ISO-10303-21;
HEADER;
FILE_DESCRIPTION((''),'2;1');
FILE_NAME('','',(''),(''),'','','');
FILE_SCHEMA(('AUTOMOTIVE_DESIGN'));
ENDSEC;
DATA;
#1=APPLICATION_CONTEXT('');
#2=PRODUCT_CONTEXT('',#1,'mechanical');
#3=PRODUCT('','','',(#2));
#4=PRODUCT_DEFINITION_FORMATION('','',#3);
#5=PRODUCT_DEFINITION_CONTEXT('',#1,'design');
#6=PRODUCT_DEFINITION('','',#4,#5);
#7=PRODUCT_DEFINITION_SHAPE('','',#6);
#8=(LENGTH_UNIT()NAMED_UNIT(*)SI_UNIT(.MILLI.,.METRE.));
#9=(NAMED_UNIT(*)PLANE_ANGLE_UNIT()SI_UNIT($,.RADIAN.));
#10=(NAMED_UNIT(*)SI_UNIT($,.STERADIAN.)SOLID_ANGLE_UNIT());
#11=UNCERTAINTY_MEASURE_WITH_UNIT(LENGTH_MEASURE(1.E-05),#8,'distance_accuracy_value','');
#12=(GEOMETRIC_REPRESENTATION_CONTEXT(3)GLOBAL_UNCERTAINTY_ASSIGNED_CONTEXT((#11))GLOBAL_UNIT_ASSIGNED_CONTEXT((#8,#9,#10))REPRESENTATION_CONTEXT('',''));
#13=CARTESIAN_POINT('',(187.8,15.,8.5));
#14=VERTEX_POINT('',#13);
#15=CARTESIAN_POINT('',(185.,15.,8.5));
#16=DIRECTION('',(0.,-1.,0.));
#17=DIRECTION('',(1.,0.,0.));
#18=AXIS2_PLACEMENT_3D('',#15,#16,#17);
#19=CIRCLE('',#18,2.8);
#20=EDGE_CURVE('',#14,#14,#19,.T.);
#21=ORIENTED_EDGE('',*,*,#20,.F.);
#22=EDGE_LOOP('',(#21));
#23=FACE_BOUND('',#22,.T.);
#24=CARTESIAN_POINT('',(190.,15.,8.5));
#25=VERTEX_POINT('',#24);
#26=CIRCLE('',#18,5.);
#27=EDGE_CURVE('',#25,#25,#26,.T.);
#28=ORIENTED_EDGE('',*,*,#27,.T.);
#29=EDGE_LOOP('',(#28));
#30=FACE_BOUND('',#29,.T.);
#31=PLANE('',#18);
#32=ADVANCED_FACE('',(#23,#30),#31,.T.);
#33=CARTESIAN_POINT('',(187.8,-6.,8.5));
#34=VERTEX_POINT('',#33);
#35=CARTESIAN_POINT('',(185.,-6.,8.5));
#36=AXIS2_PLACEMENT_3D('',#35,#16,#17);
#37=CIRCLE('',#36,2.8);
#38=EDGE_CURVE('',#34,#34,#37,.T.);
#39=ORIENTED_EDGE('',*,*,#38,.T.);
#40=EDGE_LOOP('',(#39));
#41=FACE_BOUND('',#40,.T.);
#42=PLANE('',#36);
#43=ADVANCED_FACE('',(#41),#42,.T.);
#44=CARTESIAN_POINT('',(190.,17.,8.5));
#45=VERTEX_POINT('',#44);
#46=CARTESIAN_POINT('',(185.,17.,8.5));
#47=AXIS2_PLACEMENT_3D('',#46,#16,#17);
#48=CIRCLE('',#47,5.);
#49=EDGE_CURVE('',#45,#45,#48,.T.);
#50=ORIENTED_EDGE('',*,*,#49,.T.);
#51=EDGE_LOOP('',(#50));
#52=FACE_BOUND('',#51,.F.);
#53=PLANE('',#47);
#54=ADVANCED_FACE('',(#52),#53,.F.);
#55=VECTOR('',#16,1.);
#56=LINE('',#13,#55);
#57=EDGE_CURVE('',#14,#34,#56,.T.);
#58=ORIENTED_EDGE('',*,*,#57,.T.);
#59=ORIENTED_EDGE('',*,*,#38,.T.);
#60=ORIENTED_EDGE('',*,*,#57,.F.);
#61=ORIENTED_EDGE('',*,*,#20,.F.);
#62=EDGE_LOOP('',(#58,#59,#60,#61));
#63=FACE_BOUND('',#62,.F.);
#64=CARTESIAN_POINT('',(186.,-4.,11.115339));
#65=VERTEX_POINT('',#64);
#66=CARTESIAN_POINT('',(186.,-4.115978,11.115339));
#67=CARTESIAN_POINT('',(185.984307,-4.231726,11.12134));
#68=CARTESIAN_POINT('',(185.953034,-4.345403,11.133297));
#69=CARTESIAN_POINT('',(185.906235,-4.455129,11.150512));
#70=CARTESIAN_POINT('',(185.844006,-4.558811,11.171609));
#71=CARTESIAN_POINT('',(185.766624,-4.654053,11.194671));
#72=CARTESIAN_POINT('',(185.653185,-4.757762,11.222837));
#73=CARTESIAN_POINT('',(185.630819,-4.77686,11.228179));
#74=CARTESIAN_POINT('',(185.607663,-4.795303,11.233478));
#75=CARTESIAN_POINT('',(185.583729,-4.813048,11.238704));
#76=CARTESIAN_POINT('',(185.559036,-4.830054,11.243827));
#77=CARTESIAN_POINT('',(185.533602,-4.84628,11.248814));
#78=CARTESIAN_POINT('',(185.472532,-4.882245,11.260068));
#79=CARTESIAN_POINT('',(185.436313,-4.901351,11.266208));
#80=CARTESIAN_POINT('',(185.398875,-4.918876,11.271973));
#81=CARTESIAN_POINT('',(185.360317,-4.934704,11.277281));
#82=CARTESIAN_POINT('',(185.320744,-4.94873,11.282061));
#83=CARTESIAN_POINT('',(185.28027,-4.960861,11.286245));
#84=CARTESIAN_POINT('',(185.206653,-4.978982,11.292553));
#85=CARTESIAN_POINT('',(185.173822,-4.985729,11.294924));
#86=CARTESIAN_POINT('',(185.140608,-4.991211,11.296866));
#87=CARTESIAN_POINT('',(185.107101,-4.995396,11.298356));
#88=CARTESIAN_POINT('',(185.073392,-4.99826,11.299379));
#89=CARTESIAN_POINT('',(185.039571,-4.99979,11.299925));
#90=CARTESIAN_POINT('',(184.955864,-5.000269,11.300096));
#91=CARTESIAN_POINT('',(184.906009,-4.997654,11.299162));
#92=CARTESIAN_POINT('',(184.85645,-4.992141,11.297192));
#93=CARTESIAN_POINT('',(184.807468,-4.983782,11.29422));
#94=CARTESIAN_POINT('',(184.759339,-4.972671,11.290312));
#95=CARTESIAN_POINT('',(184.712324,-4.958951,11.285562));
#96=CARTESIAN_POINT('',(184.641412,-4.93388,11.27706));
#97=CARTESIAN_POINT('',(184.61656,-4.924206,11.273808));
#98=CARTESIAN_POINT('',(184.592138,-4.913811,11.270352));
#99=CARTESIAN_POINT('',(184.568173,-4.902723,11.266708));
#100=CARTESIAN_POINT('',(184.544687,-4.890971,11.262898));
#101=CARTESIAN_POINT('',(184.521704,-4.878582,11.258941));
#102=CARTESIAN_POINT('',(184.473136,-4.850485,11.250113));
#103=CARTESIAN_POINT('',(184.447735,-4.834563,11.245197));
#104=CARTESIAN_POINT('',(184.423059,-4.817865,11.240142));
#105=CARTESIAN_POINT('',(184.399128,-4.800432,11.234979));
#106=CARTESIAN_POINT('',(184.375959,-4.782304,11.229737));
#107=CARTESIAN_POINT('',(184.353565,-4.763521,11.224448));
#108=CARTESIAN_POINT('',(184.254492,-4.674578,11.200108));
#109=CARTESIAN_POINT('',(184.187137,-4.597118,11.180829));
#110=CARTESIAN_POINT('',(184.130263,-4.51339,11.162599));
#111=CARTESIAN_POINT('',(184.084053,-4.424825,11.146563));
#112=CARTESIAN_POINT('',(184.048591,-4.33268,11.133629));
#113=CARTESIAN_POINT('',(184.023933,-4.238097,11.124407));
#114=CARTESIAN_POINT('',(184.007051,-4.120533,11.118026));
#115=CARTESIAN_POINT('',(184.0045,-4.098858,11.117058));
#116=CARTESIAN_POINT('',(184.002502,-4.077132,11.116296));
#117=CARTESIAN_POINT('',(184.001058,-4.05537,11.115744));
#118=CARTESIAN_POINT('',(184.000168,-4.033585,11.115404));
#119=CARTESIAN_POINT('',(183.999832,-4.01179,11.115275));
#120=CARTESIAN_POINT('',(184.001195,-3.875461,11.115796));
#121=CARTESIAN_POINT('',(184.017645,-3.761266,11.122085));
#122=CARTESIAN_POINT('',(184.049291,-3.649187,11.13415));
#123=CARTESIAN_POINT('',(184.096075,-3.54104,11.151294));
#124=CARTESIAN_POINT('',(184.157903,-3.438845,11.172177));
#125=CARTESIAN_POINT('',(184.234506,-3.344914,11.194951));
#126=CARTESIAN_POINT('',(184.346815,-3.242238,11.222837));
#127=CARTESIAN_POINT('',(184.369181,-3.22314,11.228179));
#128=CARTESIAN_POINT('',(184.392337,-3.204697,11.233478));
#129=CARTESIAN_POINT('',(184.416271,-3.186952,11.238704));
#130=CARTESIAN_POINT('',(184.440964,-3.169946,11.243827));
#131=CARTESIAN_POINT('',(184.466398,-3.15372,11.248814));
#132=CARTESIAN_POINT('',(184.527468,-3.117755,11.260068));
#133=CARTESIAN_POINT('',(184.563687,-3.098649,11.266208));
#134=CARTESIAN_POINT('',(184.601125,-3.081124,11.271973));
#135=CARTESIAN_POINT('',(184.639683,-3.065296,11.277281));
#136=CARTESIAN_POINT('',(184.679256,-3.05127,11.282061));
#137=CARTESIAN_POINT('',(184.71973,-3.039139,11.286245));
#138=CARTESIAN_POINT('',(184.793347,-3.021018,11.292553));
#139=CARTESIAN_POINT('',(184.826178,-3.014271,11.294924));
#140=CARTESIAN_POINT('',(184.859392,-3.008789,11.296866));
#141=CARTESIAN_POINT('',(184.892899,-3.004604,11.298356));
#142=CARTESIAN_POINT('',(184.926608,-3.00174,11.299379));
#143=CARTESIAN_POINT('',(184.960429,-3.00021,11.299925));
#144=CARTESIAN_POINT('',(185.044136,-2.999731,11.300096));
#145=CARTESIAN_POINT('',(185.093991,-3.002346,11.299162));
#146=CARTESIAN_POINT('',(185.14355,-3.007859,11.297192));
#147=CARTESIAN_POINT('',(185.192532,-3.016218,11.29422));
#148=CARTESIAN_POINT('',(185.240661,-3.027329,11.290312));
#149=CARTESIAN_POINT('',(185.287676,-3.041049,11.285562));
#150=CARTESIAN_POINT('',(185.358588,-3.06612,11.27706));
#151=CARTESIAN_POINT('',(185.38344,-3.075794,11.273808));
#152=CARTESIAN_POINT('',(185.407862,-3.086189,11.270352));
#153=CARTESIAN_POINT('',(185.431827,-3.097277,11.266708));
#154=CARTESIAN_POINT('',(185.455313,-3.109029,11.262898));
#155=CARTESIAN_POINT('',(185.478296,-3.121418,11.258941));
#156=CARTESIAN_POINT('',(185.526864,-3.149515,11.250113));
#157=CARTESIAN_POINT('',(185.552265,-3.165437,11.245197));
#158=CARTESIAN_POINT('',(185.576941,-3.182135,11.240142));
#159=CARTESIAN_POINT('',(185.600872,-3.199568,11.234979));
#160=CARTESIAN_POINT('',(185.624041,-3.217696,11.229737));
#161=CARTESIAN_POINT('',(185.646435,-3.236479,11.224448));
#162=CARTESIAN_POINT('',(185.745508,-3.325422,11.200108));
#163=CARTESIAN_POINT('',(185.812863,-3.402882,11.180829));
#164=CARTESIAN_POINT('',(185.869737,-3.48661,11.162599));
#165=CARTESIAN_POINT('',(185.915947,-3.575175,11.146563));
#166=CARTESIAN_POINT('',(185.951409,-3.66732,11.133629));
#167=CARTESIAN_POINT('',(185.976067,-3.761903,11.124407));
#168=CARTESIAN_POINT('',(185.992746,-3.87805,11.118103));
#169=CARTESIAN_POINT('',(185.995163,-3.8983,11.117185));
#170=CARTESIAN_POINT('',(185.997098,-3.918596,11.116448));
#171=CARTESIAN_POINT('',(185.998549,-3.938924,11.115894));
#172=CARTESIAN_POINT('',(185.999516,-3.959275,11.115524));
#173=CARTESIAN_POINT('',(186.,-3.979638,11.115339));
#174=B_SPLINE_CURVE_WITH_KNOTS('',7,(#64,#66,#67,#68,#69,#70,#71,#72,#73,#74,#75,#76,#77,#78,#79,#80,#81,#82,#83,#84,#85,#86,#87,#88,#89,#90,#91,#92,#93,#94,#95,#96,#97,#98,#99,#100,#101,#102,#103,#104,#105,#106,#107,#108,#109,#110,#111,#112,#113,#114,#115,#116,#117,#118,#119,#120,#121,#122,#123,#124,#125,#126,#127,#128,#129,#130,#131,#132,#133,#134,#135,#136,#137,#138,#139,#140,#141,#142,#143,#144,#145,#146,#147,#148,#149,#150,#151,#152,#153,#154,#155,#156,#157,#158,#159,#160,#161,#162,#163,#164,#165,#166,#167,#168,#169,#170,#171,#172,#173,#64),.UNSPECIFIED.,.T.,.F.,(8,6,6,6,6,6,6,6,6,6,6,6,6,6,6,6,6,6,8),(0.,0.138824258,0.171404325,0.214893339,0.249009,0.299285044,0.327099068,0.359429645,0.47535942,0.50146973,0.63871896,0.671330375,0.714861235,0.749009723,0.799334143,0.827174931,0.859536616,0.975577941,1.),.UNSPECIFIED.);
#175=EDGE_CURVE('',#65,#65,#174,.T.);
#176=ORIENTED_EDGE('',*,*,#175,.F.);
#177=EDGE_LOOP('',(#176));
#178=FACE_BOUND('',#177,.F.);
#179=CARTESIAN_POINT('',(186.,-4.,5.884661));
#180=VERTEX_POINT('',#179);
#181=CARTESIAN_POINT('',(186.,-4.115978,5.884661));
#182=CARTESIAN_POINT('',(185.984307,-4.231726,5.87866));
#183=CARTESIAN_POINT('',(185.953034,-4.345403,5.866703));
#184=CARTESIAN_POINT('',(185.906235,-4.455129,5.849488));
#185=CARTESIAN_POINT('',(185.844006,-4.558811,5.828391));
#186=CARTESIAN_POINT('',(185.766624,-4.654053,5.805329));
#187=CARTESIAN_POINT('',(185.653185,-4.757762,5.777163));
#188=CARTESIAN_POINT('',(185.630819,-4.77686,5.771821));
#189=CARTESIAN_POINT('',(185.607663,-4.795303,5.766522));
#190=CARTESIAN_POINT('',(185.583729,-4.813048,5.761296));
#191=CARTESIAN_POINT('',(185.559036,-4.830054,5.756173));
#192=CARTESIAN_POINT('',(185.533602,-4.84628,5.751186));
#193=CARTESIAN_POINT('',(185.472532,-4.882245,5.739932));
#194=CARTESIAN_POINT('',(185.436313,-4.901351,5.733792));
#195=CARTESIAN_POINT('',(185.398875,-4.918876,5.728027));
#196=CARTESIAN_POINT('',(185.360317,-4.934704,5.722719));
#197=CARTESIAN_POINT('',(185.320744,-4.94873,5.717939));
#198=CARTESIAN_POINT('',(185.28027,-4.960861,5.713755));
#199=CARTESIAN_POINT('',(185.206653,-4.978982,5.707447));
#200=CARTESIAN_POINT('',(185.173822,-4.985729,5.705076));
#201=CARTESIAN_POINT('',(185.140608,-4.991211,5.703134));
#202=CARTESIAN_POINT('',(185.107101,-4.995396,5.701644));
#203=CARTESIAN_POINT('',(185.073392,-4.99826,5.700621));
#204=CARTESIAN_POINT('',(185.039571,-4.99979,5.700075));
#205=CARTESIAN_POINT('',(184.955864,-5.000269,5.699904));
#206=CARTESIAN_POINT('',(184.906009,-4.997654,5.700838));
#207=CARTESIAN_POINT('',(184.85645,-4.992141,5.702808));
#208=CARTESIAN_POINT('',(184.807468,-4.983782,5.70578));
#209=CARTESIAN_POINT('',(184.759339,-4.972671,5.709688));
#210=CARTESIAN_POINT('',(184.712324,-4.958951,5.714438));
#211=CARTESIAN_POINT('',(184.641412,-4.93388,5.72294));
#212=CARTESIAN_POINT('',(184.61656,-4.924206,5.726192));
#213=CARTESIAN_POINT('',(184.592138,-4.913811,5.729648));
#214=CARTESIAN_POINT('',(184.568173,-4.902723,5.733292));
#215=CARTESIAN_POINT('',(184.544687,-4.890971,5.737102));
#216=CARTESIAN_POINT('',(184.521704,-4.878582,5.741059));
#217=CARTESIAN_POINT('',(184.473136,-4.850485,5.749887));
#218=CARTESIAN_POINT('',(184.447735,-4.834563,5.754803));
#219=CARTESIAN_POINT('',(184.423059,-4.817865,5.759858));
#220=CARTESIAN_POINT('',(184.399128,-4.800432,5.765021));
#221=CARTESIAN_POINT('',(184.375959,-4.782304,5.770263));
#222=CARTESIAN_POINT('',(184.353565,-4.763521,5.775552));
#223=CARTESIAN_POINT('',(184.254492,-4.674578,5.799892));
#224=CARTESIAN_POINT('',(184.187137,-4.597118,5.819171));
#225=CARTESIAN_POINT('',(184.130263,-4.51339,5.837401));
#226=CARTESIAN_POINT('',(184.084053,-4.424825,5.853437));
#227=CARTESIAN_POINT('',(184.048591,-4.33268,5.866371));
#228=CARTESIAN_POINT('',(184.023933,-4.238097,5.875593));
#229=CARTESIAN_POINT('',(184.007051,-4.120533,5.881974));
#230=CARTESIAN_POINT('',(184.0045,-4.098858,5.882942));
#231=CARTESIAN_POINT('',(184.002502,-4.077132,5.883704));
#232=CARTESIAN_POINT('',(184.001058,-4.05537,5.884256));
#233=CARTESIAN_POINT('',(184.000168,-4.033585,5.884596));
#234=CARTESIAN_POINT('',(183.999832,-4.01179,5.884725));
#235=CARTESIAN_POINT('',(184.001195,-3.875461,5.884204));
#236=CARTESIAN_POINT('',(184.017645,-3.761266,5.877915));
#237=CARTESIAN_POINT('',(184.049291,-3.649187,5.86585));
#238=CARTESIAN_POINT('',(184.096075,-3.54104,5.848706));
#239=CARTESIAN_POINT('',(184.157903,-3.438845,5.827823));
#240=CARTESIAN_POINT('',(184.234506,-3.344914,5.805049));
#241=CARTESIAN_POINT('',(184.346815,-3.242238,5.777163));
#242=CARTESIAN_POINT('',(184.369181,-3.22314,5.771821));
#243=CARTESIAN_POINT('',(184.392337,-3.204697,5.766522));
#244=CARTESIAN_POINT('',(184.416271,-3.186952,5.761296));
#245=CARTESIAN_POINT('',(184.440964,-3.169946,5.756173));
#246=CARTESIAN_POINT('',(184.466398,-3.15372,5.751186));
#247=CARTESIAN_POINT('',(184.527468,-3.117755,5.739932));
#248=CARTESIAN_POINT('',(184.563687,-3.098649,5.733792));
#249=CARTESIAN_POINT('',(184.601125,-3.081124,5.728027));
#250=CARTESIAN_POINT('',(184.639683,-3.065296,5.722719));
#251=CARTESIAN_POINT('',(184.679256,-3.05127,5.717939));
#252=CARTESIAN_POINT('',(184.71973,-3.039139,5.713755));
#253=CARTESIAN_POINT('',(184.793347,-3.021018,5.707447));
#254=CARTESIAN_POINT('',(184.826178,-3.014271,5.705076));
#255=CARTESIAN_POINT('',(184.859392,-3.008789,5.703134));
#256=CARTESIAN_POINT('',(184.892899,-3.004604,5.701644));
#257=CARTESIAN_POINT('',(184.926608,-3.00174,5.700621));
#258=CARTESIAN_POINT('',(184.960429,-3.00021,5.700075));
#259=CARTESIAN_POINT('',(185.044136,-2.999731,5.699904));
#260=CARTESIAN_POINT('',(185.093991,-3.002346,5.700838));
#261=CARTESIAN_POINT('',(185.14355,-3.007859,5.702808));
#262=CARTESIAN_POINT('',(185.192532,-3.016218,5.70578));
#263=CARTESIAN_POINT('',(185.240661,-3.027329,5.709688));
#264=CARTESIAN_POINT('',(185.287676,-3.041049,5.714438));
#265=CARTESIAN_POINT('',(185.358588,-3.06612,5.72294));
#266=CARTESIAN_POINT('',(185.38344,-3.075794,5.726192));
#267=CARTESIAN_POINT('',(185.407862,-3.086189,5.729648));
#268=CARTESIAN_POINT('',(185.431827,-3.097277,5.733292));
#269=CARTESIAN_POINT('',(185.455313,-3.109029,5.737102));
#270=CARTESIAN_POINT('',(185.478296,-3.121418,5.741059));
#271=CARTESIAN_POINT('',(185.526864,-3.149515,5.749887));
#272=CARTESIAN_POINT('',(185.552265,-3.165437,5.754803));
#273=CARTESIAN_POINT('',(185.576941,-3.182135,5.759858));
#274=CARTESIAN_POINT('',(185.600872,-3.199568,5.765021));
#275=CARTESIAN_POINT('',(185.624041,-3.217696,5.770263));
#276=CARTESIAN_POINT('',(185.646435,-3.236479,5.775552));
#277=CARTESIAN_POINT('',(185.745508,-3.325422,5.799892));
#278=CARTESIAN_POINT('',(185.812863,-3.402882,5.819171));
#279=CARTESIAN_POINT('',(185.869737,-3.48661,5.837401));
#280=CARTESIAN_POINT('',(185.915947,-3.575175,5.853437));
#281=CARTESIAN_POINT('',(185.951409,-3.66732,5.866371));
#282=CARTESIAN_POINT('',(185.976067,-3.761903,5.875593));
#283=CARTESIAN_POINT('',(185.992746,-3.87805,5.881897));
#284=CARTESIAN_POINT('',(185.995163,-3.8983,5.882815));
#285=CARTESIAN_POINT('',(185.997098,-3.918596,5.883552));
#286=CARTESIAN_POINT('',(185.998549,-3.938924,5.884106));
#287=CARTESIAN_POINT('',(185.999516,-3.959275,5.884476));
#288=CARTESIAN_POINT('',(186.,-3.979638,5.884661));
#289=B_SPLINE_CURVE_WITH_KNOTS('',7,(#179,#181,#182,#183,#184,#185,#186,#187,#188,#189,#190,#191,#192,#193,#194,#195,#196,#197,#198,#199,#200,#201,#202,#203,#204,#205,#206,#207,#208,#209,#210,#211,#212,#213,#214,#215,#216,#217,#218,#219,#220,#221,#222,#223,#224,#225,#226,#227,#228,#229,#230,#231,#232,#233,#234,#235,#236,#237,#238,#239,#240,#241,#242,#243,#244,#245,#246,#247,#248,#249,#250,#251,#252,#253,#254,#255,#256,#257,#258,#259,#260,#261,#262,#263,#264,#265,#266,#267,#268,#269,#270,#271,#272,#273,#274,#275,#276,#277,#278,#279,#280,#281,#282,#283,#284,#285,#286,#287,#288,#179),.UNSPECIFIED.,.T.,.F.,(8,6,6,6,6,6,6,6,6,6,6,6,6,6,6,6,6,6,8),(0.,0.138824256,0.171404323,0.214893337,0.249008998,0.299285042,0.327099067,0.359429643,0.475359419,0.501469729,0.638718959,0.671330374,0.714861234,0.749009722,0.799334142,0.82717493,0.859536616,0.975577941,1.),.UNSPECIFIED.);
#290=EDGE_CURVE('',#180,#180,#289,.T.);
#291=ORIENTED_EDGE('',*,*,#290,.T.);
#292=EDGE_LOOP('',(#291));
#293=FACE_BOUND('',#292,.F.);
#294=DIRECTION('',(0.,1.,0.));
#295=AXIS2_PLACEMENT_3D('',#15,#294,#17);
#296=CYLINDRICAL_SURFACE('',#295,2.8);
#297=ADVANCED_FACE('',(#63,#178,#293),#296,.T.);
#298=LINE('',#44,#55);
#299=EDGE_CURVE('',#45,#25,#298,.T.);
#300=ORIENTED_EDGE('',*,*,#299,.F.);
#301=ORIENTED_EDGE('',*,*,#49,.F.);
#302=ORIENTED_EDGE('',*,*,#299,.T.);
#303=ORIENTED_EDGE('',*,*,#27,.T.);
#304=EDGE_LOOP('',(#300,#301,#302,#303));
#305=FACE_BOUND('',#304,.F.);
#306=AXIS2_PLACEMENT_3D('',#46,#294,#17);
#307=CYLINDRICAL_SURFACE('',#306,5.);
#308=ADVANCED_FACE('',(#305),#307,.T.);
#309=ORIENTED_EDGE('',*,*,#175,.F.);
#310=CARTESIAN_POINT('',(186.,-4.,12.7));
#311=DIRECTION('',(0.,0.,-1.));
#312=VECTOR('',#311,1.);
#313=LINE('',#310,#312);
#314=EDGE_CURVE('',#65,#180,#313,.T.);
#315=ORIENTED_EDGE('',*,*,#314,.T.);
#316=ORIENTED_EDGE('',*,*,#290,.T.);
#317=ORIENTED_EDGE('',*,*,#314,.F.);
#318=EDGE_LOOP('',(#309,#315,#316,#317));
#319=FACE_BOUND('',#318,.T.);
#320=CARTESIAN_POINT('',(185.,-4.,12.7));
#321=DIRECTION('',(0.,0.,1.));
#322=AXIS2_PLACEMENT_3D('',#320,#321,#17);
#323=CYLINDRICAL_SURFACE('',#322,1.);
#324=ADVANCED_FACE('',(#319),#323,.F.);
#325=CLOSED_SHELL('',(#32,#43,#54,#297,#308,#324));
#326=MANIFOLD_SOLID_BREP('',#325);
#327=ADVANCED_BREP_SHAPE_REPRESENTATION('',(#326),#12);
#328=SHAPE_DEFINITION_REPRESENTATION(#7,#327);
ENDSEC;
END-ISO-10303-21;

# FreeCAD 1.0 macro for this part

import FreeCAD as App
import Part
import Sketcher

V = App.Vector

doc = App.newDocument("Part")
body = doc.addObject("PartDesign::Body", "Body")

sketch1 = body.newObject("Sketcher::SketchObject", "Sketch")
sketch1.AttachmentSupport = (doc.getObject("XZ_Plane"), [""])
sketch1.MapMode = "FlatFace"
sketch1.AttachmentOffset = App.Placement(V(0, 0, -4.2), App.Rotation())
sketch1.addGeometry(Part.Circle(V(0, 21, 0), V(0, 0, 1), 1), False)
sketch1.addConstraint(Sketcher.Constraint("PointOnObject", 0, 3, -2))
sketch1.addConstraint(Sketcher.Constraint("Diameter", 0, 2.0))
sketch1.addConstraint(Sketcher.Constraint("DistanceY", -1, 1, 0, 3, 21.0))
pad1 = body.newObject("PartDesign::Pad", "Pad")
pad1.Profile = sketch1
pad1.Length = 10
body2 = doc.addObject("PartDesign::Body", "Body001")

sketch2 = body2.newObject("Sketcher::SketchObject", "Sketch001")
sketch2.AttachmentSupport = (doc.getObject("XY_Plane001"), [""])
sketch2.MapMode = "FlatFace"
sketch2.AttachmentOffset = App.Placement(V(0, 0, 2), App.Rotation())
sketch2.addGeometry(Part.Circle(V(0, 0, 0), V(0, 0, 1), 2.8), False)
sketch2.addConstraint(Sketcher.Constraint("Coincident", 0, 3, -1, 1))
sketch2.addConstraint(Sketcher.Constraint("Diameter", 0, 5.6))
pad2 = body2.newObject("PartDesign::Pad", "Pad001")
pad2.Profile = sketch2
pad2.Length = 21
body3 = doc.addObject("PartDesign::Body", "Body002")

sketch3 = body3.newObject("Sketcher::SketchObject", "Sketch002")
sketch3.AttachmentSupport = (doc.getObject("XY_Plane002"), [""])
sketch3.MapMode = "FlatFace"
sketch3.addGeometry(Part.Circle(V(0, 0, 0), V(0, 0, 1), 5), False)
sketch3.addConstraint(Sketcher.Constraint("Coincident", 0, 3, -1, 1))
sketch3.addConstraint(Sketcher.Constraint("Diameter", 0, 10.0))
pad3 = body3.newObject("PartDesign::Pad", "Pad002")
pad3.Profile = sketch3
pad3.Length = 2
doc.recompute()

boolean = body3.newObject("PartDesign::Boolean", "Boolean")
boolean.Type = "Fuse"
boolean.addObjects([body2])
doc.recompute()

boolean2 = body3.newObject("PartDesign::Boolean", "Boolean001")
boolean2.Type = "Cut"
boolean2.addObjects([body])
body4 = doc.addObject("PartDesign::Body", "Body003")
doc.recompute()

body3.Placement = App.Placement(V(0, 0, 0), App.Rotation(V(1, 0, 0), 90))
boolean3 = body4.newObject("PartDesign::Boolean", "Boolean002")
boolean3.Type = "Fuse"
boolean3.addObjects([body3])
body5 = doc.addObject("PartDesign::Body", "Body004")
doc.recompute()

body4.Placement = App.Placement(V(185, 17, 8.5), App.Rotation(V(0, 0, 1), 0))
boolean4 = body5.newObject("PartDesign::Boolean", "Boolean003")
boolean4.Type = "Fuse"
boolean4.addObjects([body4])

doc.recompute()
